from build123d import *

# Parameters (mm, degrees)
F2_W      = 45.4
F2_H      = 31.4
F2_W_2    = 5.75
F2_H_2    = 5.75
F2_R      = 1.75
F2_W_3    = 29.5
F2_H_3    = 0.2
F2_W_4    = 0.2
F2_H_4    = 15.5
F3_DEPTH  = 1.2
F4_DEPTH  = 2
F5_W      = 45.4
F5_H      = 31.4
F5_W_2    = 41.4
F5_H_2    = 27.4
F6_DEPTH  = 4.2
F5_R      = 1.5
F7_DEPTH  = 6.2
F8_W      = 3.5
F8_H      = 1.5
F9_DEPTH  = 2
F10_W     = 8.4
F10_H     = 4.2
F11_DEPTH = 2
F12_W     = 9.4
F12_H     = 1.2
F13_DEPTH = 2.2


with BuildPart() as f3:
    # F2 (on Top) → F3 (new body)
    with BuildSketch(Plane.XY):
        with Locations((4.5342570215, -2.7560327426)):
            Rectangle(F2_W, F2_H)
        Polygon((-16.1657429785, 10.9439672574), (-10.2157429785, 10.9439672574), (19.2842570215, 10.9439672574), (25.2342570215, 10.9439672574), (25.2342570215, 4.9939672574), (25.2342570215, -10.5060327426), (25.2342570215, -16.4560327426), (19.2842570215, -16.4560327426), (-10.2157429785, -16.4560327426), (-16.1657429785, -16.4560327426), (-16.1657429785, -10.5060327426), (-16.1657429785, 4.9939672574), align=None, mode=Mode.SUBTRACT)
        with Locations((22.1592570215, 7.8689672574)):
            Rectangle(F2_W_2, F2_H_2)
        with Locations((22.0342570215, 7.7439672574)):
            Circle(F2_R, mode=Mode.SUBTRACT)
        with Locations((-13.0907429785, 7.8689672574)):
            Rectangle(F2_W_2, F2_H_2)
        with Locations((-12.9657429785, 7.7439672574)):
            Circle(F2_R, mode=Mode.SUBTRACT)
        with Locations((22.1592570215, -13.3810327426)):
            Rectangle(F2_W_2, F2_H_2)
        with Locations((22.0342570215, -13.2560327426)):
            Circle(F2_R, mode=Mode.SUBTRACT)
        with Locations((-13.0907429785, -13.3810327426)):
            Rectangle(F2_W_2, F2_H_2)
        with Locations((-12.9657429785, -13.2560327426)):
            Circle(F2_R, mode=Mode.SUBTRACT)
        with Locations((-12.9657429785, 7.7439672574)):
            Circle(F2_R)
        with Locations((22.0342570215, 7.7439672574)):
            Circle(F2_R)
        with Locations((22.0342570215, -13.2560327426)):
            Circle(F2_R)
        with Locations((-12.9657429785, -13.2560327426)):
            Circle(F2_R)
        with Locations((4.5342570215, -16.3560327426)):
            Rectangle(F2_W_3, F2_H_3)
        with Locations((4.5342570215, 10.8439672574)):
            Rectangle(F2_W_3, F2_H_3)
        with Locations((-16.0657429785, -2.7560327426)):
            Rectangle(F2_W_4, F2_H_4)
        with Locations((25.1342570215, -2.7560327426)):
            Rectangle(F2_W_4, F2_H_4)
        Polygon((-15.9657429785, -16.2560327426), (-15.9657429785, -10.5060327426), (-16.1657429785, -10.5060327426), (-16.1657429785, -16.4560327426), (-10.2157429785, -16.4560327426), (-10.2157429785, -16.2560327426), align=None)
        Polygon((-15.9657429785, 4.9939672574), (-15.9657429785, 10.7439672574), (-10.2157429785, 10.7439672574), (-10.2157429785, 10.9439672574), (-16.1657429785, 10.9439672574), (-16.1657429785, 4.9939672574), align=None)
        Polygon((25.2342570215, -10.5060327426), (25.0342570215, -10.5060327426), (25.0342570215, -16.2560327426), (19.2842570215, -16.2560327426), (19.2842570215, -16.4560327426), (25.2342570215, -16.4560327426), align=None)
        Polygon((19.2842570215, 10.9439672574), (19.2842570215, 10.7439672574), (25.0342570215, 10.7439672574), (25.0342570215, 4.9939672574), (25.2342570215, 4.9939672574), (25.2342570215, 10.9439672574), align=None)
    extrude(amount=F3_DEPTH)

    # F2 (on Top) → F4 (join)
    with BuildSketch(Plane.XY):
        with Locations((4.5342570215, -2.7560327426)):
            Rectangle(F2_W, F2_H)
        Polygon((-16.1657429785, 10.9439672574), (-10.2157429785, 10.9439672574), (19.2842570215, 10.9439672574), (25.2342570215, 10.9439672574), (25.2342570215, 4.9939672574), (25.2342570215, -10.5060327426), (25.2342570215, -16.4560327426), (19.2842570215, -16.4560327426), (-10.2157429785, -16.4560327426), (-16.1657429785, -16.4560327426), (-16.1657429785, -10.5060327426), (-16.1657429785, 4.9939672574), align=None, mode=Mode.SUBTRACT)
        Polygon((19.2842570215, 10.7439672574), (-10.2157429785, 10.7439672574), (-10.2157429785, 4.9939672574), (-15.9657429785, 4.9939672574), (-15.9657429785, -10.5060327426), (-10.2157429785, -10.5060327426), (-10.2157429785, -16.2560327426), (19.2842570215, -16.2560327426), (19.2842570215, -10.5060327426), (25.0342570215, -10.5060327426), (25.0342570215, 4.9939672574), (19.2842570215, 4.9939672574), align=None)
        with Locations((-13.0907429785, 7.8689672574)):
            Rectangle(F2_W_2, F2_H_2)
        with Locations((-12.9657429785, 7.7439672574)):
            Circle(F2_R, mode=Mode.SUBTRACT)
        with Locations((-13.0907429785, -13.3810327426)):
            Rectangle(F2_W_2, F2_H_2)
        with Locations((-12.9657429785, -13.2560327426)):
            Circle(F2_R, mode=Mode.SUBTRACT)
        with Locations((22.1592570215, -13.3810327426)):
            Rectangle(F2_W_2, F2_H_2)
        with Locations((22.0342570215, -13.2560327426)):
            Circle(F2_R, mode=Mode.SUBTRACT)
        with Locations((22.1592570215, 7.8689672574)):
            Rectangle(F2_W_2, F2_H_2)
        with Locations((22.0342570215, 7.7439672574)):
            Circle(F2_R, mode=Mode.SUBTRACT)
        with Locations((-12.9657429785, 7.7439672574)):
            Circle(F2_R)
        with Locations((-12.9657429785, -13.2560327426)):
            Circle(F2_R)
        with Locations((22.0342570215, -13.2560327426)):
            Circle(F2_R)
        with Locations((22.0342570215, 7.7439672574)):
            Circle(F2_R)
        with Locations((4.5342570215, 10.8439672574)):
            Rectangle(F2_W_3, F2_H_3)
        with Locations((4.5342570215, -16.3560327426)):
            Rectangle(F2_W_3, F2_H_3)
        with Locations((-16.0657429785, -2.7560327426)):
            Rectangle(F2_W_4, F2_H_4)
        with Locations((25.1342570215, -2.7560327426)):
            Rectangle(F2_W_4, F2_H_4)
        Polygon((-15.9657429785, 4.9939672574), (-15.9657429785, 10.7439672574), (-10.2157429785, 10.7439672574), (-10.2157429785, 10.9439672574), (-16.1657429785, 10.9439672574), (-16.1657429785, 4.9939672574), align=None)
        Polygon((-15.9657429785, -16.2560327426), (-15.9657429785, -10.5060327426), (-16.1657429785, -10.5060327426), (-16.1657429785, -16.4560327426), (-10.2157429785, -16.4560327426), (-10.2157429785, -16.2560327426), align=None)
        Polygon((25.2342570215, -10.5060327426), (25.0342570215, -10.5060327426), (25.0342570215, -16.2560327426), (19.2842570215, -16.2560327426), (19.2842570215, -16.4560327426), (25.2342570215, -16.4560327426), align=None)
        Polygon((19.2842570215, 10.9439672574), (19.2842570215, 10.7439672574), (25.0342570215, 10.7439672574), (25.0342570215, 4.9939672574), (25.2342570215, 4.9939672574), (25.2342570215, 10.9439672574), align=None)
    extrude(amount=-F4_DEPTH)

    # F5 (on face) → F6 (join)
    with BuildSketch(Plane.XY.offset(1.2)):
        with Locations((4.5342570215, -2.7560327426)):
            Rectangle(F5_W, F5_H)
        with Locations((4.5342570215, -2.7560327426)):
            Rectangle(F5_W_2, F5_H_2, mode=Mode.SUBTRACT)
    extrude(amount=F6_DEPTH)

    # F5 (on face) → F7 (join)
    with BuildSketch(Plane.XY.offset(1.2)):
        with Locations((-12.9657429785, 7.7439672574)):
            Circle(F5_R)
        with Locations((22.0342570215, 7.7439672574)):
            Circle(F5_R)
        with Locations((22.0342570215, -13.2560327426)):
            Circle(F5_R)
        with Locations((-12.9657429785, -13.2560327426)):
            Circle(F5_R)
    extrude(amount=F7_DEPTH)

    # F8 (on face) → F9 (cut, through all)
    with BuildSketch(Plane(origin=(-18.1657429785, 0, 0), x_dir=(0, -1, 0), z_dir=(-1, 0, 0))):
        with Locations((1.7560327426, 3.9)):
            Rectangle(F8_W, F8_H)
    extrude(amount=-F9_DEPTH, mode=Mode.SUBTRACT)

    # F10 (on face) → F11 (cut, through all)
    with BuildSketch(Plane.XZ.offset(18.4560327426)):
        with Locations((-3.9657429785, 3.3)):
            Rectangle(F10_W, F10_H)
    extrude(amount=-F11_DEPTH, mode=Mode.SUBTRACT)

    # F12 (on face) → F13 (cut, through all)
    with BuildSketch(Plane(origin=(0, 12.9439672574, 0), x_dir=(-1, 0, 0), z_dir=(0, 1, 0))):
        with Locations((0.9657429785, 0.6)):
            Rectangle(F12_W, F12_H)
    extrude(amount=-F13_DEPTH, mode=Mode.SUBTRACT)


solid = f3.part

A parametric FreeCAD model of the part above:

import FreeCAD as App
import Part
import Sketcher
from FreeCAD import Vector
Q = App.Units.Quantity

doc = App.newDocument("Part")
body = doc.addObject("PartDesign::Body", "Body")

sketch1 = doc.addObject("Sketcher::SketchObject", "Sketch")
body.addObject(sketch1)
sketch1.AttachmentSupport = (doc.XY_Plane, [""])
sketch1.MapMode = "FlatFace"
sketch1.addGeometry([
    Part.LineSegment(Vector(-18, 13, 0), Vector(-18, -18, 0)),
    Part.LineSegment(Vector(-18, -18, 0), Vector(27, -18, 0)),
    Part.LineSegment(Vector(27, -18, 0), Vector(27, 13, 0)),
    Part.LineSegment(Vector(27, 13, 0), Vector(-18, 13, 0)),
    Part.LineSegment(Vector(-16, -11, 0), Vector(-16, 5, 0)),
    Part.LineSegment(Vector(-16, 5, 0), Vector(-10, 5, 0)),
    Part.LineSegment(Vector(-10, 5, 0), Vector(-10, 11, 0)),
    Part.LineSegment(Vector(-10, 11, 0), Vector(19, 11, 0)),
    Part.LineSegment(Vector(19, 11, 0), Vector(19, 5, 0)),
    Part.LineSegment(Vector(19, 5, 0), Vector(25, 5, 0)),
    Part.LineSegment(Vector(25, 5, 0), Vector(25, -11, 0)),
    Part.LineSegment(Vector(25, -11, 0), Vector(19, -11, 0)),
    Part.LineSegment(Vector(19, -11, 0), Vector(19, -16, 0)),
    Part.LineSegment(Vector(19, -16, 0), Vector(-10, -16, 0)),
    Part.LineSegment(Vector(-10, -16, 0), Vector(-10, -11, 0)),
    Part.LineSegment(Vector(-10, -11, 0), Vector(-16, -11, 0)),
], False)
sketch1.addConstraint([
    Sketcher.Constraint("Coincident", 0, 2, 1, 1),
    Sketcher.Constraint("Coincident", 1, 2, 2, 1),
    Sketcher.Constraint("Coincident", 2, 2, 3, 1),
    Sketcher.Constraint("Coincident", 3, 2, 0, 1),
    Sketcher.Constraint("Coincident", 4, 2, 5, 1),
    Sketcher.Constraint("Coincident", 5, 2, 6, 1),
    Sketcher.Constraint("Coincident", 6, 2, 7, 1),
    Sketcher.Constraint("Coincident", 7, 2, 8, 1),
    Sketcher.Constraint("Coincident", 8, 2, 9, 1),
    Sketcher.Constraint("Coincident", 9, 2, 10, 1),
    Sketcher.Constraint("Coincident", 10, 2, 11, 1),
    Sketcher.Constraint("Coincident", 11, 2, 12, 1),
    Sketcher.Constraint("Coincident", 12, 2, 13, 1),
    Sketcher.Constraint("Coincident", 13, 2, 14, 1),
    Sketcher.Constraint("Coincident", 14, 2, 15, 1),
    Sketcher.Constraint("Coincident", 15, 2, 4, 1),
    Sketcher.Constraint("Vertical", 0),
    Sketcher.Constraint("Horizontal", 1),
    Sketcher.Constraint("Vertical", 2),
    Sketcher.Constraint("Horizontal", 3),
    Sketcher.Constraint("Vertical", 4),
    Sketcher.Constraint("Horizontal", 5),
    Sketcher.Constraint("Vertical", 6),
    Sketcher.Constraint("Horizontal", 7),
    Sketcher.Constraint("Vertical", 8),
    Sketcher.Constraint("Horizontal", 9),
    Sketcher.Constraint("Vertical", 10),
    Sketcher.Constraint("Horizontal", 11),
    Sketcher.Constraint("Vertical", 12),
    Sketcher.Constraint("Horizontal", 13),
    Sketcher.Constraint("Vertical", 14),
    Sketcher.Constraint("Horizontal", 15),
    Sketcher.Constraint("Horizontal", 5, 2, 8, 2),
    Sketcher.Constraint("Horizontal", 11, 2, 14, 2),
    Sketcher.Constraint("Vertical", 8, 2, 11, 2),
    Sketcher.Constraint("Vertical", 6, 2, 13, 2),
    Sketcher.Constraint("Equal", 5, 9),
    Sketcher.Constraint("Equal", 15, 6),
    Sketcher.Constraint("Equal", 8, 12),
    Sketcher.Constraint("DistanceX", 1, 1, 1, 2, Q("45.4 mm")),
    Sketcher.Constraint("DistanceX", 7, 1, 7, 2, Q("29.5 mm")),
    Sketcher.Constraint("DistanceY", 0, 2, 0, 1, Q("31.4 mm")),
    Sketcher.Constraint("DistanceY", 4, 1, 4, 2, Q("15.5 mm")),
    Sketcher.Constraint("DistanceY", 13, 2, 6, 2, Q("27 mm")),
    Sketcher.Constraint("DistanceX", 3, 2, 4, 2, Q("2.2 mm")),
    Sketcher.Constraint("DistanceY", 6, 2, 3, 2, Q("2.2 mm")),
    Sketcher.Constraint("DistanceX", 0, 2, -1, 1, Q("18.165743 mm")),
    Sketcher.Constraint("DistanceY", 0, 2, -1, 1, Q("18.456033 mm")),
])
pad1 = doc.addObject("PartDesign::Pad", "Pad")
body.addObject(pad1)
pad1.Profile = sketch1
pad1.Length = 1.2

sketch2 = doc.addObject("Sketcher::SketchObject", "Sketch001")
body.addObject(sketch2)
sketch2.AttachmentSupport = (doc.XY_Plane, [""])
sketch2.MapMode = "FlatFace"
sketch2.addGeometry([
    Part.LineSegment(Vector(-18, 13, 0), Vector(-18, -18, 0)),
    Part.LineSegment(Vector(-18, -18, 0), Vector(27, -18, 0)),
    Part.LineSegment(Vector(27, -18, 0), Vector(27, 13, 0)),
    Part.LineSegment(Vector(27, 13, 0), Vector(-18, 13, 0)),
], False)
sketch2.addConstraint([
    Sketcher.Constraint("Coincident", 0, 2, 1, 1),
    Sketcher.Constraint("Coincident", 1, 2, 2, 1),
    Sketcher.Constraint("Coincident", 2, 2, 3, 1),
    Sketcher.Constraint("Coincident", 3, 2, 0, 1),
    Sketcher.Constraint("Vertical", 0),
    Sketcher.Constraint("Horizontal", 1),
    Sketcher.Constraint("Vertical", 2),
    Sketcher.Constraint("Horizontal", 3),
    Sketcher.Constraint("DistanceX", 1, 1, 1, 2, Q("45.4 mm")),
    Sketcher.Constraint("DistanceY", 0, 2, 0, 1, Q("31.4 mm")),
    Sketcher.Constraint("DistanceX", 0, 2, -1, 1, Q("18.165743 mm")),
    Sketcher.Constraint("DistanceY", 0, 2, -1, 1, Q("18.456033 mm")),
])
pad2 = doc.addObject("PartDesign::Pad", "Pad001")
body.addObject(pad2)
pad2.Profile = sketch2
pad2.Length = 2
pad2.Reversed = True

sketch3 = doc.addObject("Sketcher::SketchObject", "Sketch002")
body.addObject(sketch3)
sketch3.AttachmentSupport = (doc.XY_Plane, [""])
sketch3.MapMode = "FlatFace"
sketch3.AttachmentOffset = App.Placement(Vector(0, 0, 1.2), App.Rotation())
sketch3.addGeometry([
    Part.LineSegment(Vector(-18, 13, 0), Vector(-18, -18, 0)),
    Part.LineSegment(Vector(-18, -18, 0), Vector(27, -18, 0)),
    Part.LineSegment(Vector(27, -18, 0), Vector(27, 13, 0)),
    Part.LineSegment(Vector(27, 13, 0), Vector(-18, 13, 0)),
    Part.LineSegment(Vector(25, -16, 0), Vector(-16, -16, 0)),
    Part.LineSegment(Vector(-16, -16, 0), Vector(-16, 11, 0)),
    Part.LineSegment(Vector(-16, 11, 0), Vector(25, 11, 0)),
    Part.LineSegment(Vector(25, 11, 0), Vector(25, -16, 0)),
], False)
sketch3.addConstraint([
    Sketcher.Constraint("Coincident", 0, 2, 1, 1),
    Sketcher.Constraint("Coincident", 1, 2, 2, 1),
    Sketcher.Constraint("Coincident", 2, 2, 3, 1),
    Sketcher.Constraint("Coincident", 3, 2, 0, 1),
    Sketcher.Constraint("Coincident", 4, 2, 5, 1),
    Sketcher.Constraint("Coincident", 5, 2, 6, 1),
    Sketcher.Constraint("Coincident", 6, 2, 7, 1),
    Sketcher.Constraint("Coincident", 7, 2, 4, 1),
    Sketcher.Constraint("Vertical", 0),
    Sketcher.Constraint("Horizontal", 1),
    Sketcher.Constraint("Vertical", 2),
    Sketcher.Constraint("Horizontal", 3),
    Sketcher.Constraint("Horizontal", 4),
    Sketcher.Constraint("Vertical", 5),
    Sketcher.Constraint("Horizontal", 6),
    Sketcher.Constraint("Vertical", 7),
    Sketcher.Constraint("DistanceX", 1, 1, 1, 2, Q("45.4 mm")),
    Sketcher.Constraint("DistanceX", 4, 2, 4, 1, Q("41.4 mm")),
    Sketcher.Constraint("DistanceY", 0, 2, 0, 1, Q("31.4 mm")),
    Sketcher.Constraint("DistanceY", 5, 1, 5, 2, Q("27.4 mm")),
    Sketcher.Constraint("DistanceX", 0, 2, 4, 2, Q("2 mm")),
    Sketcher.Constraint("DistanceY", 0, 2, 4, 2, Q("2 mm")),
    Sketcher.Constraint("DistanceX", 0, 2, -1, 1, Q("18.165743 mm")),
    Sketcher.Constraint("DistanceY", 0, 2, -1, 1, Q("18.456033 mm")),
])
pad3 = doc.addObject("PartDesign::Pad", "Pad002")
body.addObject(pad3)
pad3.Profile = sketch3
pad3.Length = 4.2

sketch4 = doc.addObject("Sketcher::SketchObject", "Sketch003")
body.addObject(sketch4)
sketch4.AttachmentSupport = (doc.XY_Plane, [""])
sketch4.MapMode = "FlatFace"
sketch4.AttachmentOffset = App.Placement(Vector(0, 0, 1.2), App.Rotation())
sketch4.addGeometry([
    Part.Circle(Vector(-13, 7.7, 0), Vector(0, 0, 1), 1.5),
    Part.Circle(Vector(22, 7.7, 0), Vector(0, 0, 1), 1.5),
    Part.Circle(Vector(22, -13.3, 0), Vector(0, 0, 1), 1.5),
    Part.Circle(Vector(-13, -13.3, 0), Vector(0, 0, 1), 1.5),
], False)
sketch4.addConstraint([
    Sketcher.Constraint("Equal", 0, 1),
    Sketcher.Constraint("Equal", 1, 2),
    Sketcher.Constraint("Equal", 2, 3),
    Sketcher.Constraint("Horizontal", 0, 3, 1, 3),
    Sketcher.Constraint("Horizontal", 2, 3, 3, 3),
    Sketcher.Constraint("Vertical", 1, 3, 2, 3),
    Sketcher.Constraint("Vertical", 0, 3, 3, 3),
    Sketcher.Constraint("Diameter", 0, Q("3 mm")),
    Sketcher.Constraint("DistanceX", 0, 3, 1, 3, Q("35 mm")),
    Sketcher.Constraint("DistanceY", 2, 3, 1, 3, Q("21 mm")),
    Sketcher.Constraint("DistanceX", 0, 3, -1, 1, Q("12.965743 mm")),
    Sketcher.Constraint("DistanceY", -1, 1, 0, 3, Q("7.743967 mm")),
])
pad4 = doc.addObject("PartDesign::Pad", "Pad003")
body.addObject(pad4)
pad4.Profile = sketch4
pad4.Length = 6.2

sketch5 = doc.addObject("Sketcher::SketchObject", "Sketch004")
body.addObject(sketch5)
sketch5.AttachmentSupport = (doc.YZ_Plane, [""])
sketch5.MapMode = "FlatFace"
sketch5.AttachmentOffset = App.Placement(Vector(0, 0, -18.165743), App.Rotation())
sketch5.addGeometry([
    Part.LineSegment(Vector(0, 4.7, 0), Vector(0, 3.1, 0)),
    Part.LineSegment(Vector(0, 3.1, 0), Vector(-3.5, 3.1, 0)),
    Part.LineSegment(Vector(-3.5, 3.1, 0), Vector(-3.5, 4.7, 0)),
    Part.LineSegment(Vector(-3.5, 4.7, 0), Vector(0, 4.7, 0)),
], False)
sketch5.addConstraint([
    Sketcher.Constraint("Coincident", 0, 2, 1, 1),
    Sketcher.Constraint("Coincident", 1, 2, 2, 1),
    Sketcher.Constraint("Coincident", 2, 2, 3, 1),
    Sketcher.Constraint("Coincident", 3, 2, 0, 1),
    Sketcher.Constraint("Vertical", 0),
    Sketcher.Constraint("Horizontal", 1),
    Sketcher.Constraint("Vertical", 2),
    Sketcher.Constraint("Horizontal", 3),
    Sketcher.Constraint("DistanceX", 1, 2, 1, 1, Q("3.5 mm")),
    Sketcher.Constraint("DistanceY", 0, 2, 0, 1, Q("1.5 mm")),
    Sketcher.Constraint("DistanceY", -1, 1, 0, 2, Q("3.15 mm")),
    Sketcher.Constraint("DistanceX", 0, 2, -1, 1, Q("0.006033 mm")),
])
pocket1 = doc.addObject("PartDesign::Pocket", "Pocket")
body.addObject(pocket1)
pocket1.Profile = sketch5
pocket1.Length = 2
pocket1.Reversed = True

sketch6 = doc.addObject("Sketcher::SketchObject", "Sketch005")
body.addObject(sketch6)
sketch6.AttachmentSupport = (doc.XZ_Plane, [""])
sketch6.MapMode = "FlatFace"
sketch6.AttachmentOffset = App.Placement(Vector(0, 0, 18.456033), App.Rotation())
sketch6.addGeometry([
    Part.LineSegment(Vector(-8.2, 5.4, 0), Vector(-8.2, 1.2, 0)),
    Part.LineSegment(Vector(-8.2, 1.2, 0), Vector(0.2, 1.2, 0)),
    Part.LineSegment(Vector(0.2, 1.2, 0), Vector(0.2, 5.4, 0)),
    Part.LineSegment(Vector(0.2, 5.4, 0), Vector(-8.2, 5.4, 0)),
], False)
sketch6.addConstraint([
    Sketcher.Constraint("Coincident", 0, 2, 1, 1),
    Sketcher.Constraint("Coincident", 1, 2, 2, 1),
    Sketcher.Constraint("Coincident", 2, 2, 3, 1),
    Sketcher.Constraint("Coincident", 3, 2, 0, 1),
    Sketcher.Constraint("Vertical", 0),
    Sketcher.Constraint("Horizontal", 1),
    Sketcher.Constraint("Vertical", 2),
    Sketcher.Constraint("Horizontal", 3),
    Sketcher.Constraint("DistanceX", 1, 1, 1, 2, Q("8.4 mm")),
    Sketcher.Constraint("DistanceY", 0, 2, 0, 1, Q("4.2 mm")),
    Sketcher.Constraint("DistanceY", -1, 1, 0, 2, Q("1.2 mm")),
    Sketcher.Constraint("DistanceX", 0, 2, -1, 1, Q("8.165743 mm")),
])
pocket2 = doc.addObject("PartDesign::Pocket", "Pocket001")
body.addObject(pocket2)
pocket2.Profile = sketch6
pocket2.Length = 2

sketch7 = doc.addObject("Sketcher::SketchObject", "Sketch006")
body.addObject(sketch7)
sketch7.AttachmentSupport = (doc.XZ_Plane, [""])
sketch7.MapMode = "FlatFace"
sketch7.AttachmentOffset = App.Placement(Vector(0, 0, -12.943967), App.Rotation())
sketch7.addGeometry([
    Part.LineSegment(Vector(3.7, 1.2, 0), Vector(3.7, 0, 0)),
    Part.LineSegment(Vector(3.7, 0, 0), Vector(-5.7, 0, 0)),
    Part.LineSegment(Vector(-5.7, 0, 0), Vector(-5.7, 1.2, 0)),
    Part.LineSegment(Vector(-5.7, 1.2, 0), Vector(3.7, 1.2, 0)),
], False)
sketch7.addConstraint([
    Sketcher.Constraint("Coincident", 0, 2, 1, 1),
    Sketcher.Constraint("Coincident", 1, 2, 2, 1),
    Sketcher.Constraint("Coincident", 2, 2, 3, 1),
    Sketcher.Constraint("Coincident", 3, 2, 0, 1),
    Sketcher.Constraint("Vertical", 0),
    Sketcher.Constraint("Horizontal", 1),
    Sketcher.Constraint("Vertical", 2),
    Sketcher.Constraint("Horizontal", 3),
    Sketcher.Constraint("PointOnObject", 0, 2, -1),
    Sketcher.Constraint("DistanceX", 1, 2, 1, 1, Q("9.4 mm")),
    Sketcher.Constraint("DistanceY", 0, 2, 0, 1, Q("1.2 mm")),
    Sketcher.Constraint("DistanceX", -1, 1, 0, 2, Q("3.734257 mm")),
])
pocket3 = doc.addObject("PartDesign::Pocket", "Pocket002")
body.addObject(pocket3)
pocket3.Profile = sketch7
pocket3.Length = 2.2
pocket3.Reversed = True

doc.recompute()
